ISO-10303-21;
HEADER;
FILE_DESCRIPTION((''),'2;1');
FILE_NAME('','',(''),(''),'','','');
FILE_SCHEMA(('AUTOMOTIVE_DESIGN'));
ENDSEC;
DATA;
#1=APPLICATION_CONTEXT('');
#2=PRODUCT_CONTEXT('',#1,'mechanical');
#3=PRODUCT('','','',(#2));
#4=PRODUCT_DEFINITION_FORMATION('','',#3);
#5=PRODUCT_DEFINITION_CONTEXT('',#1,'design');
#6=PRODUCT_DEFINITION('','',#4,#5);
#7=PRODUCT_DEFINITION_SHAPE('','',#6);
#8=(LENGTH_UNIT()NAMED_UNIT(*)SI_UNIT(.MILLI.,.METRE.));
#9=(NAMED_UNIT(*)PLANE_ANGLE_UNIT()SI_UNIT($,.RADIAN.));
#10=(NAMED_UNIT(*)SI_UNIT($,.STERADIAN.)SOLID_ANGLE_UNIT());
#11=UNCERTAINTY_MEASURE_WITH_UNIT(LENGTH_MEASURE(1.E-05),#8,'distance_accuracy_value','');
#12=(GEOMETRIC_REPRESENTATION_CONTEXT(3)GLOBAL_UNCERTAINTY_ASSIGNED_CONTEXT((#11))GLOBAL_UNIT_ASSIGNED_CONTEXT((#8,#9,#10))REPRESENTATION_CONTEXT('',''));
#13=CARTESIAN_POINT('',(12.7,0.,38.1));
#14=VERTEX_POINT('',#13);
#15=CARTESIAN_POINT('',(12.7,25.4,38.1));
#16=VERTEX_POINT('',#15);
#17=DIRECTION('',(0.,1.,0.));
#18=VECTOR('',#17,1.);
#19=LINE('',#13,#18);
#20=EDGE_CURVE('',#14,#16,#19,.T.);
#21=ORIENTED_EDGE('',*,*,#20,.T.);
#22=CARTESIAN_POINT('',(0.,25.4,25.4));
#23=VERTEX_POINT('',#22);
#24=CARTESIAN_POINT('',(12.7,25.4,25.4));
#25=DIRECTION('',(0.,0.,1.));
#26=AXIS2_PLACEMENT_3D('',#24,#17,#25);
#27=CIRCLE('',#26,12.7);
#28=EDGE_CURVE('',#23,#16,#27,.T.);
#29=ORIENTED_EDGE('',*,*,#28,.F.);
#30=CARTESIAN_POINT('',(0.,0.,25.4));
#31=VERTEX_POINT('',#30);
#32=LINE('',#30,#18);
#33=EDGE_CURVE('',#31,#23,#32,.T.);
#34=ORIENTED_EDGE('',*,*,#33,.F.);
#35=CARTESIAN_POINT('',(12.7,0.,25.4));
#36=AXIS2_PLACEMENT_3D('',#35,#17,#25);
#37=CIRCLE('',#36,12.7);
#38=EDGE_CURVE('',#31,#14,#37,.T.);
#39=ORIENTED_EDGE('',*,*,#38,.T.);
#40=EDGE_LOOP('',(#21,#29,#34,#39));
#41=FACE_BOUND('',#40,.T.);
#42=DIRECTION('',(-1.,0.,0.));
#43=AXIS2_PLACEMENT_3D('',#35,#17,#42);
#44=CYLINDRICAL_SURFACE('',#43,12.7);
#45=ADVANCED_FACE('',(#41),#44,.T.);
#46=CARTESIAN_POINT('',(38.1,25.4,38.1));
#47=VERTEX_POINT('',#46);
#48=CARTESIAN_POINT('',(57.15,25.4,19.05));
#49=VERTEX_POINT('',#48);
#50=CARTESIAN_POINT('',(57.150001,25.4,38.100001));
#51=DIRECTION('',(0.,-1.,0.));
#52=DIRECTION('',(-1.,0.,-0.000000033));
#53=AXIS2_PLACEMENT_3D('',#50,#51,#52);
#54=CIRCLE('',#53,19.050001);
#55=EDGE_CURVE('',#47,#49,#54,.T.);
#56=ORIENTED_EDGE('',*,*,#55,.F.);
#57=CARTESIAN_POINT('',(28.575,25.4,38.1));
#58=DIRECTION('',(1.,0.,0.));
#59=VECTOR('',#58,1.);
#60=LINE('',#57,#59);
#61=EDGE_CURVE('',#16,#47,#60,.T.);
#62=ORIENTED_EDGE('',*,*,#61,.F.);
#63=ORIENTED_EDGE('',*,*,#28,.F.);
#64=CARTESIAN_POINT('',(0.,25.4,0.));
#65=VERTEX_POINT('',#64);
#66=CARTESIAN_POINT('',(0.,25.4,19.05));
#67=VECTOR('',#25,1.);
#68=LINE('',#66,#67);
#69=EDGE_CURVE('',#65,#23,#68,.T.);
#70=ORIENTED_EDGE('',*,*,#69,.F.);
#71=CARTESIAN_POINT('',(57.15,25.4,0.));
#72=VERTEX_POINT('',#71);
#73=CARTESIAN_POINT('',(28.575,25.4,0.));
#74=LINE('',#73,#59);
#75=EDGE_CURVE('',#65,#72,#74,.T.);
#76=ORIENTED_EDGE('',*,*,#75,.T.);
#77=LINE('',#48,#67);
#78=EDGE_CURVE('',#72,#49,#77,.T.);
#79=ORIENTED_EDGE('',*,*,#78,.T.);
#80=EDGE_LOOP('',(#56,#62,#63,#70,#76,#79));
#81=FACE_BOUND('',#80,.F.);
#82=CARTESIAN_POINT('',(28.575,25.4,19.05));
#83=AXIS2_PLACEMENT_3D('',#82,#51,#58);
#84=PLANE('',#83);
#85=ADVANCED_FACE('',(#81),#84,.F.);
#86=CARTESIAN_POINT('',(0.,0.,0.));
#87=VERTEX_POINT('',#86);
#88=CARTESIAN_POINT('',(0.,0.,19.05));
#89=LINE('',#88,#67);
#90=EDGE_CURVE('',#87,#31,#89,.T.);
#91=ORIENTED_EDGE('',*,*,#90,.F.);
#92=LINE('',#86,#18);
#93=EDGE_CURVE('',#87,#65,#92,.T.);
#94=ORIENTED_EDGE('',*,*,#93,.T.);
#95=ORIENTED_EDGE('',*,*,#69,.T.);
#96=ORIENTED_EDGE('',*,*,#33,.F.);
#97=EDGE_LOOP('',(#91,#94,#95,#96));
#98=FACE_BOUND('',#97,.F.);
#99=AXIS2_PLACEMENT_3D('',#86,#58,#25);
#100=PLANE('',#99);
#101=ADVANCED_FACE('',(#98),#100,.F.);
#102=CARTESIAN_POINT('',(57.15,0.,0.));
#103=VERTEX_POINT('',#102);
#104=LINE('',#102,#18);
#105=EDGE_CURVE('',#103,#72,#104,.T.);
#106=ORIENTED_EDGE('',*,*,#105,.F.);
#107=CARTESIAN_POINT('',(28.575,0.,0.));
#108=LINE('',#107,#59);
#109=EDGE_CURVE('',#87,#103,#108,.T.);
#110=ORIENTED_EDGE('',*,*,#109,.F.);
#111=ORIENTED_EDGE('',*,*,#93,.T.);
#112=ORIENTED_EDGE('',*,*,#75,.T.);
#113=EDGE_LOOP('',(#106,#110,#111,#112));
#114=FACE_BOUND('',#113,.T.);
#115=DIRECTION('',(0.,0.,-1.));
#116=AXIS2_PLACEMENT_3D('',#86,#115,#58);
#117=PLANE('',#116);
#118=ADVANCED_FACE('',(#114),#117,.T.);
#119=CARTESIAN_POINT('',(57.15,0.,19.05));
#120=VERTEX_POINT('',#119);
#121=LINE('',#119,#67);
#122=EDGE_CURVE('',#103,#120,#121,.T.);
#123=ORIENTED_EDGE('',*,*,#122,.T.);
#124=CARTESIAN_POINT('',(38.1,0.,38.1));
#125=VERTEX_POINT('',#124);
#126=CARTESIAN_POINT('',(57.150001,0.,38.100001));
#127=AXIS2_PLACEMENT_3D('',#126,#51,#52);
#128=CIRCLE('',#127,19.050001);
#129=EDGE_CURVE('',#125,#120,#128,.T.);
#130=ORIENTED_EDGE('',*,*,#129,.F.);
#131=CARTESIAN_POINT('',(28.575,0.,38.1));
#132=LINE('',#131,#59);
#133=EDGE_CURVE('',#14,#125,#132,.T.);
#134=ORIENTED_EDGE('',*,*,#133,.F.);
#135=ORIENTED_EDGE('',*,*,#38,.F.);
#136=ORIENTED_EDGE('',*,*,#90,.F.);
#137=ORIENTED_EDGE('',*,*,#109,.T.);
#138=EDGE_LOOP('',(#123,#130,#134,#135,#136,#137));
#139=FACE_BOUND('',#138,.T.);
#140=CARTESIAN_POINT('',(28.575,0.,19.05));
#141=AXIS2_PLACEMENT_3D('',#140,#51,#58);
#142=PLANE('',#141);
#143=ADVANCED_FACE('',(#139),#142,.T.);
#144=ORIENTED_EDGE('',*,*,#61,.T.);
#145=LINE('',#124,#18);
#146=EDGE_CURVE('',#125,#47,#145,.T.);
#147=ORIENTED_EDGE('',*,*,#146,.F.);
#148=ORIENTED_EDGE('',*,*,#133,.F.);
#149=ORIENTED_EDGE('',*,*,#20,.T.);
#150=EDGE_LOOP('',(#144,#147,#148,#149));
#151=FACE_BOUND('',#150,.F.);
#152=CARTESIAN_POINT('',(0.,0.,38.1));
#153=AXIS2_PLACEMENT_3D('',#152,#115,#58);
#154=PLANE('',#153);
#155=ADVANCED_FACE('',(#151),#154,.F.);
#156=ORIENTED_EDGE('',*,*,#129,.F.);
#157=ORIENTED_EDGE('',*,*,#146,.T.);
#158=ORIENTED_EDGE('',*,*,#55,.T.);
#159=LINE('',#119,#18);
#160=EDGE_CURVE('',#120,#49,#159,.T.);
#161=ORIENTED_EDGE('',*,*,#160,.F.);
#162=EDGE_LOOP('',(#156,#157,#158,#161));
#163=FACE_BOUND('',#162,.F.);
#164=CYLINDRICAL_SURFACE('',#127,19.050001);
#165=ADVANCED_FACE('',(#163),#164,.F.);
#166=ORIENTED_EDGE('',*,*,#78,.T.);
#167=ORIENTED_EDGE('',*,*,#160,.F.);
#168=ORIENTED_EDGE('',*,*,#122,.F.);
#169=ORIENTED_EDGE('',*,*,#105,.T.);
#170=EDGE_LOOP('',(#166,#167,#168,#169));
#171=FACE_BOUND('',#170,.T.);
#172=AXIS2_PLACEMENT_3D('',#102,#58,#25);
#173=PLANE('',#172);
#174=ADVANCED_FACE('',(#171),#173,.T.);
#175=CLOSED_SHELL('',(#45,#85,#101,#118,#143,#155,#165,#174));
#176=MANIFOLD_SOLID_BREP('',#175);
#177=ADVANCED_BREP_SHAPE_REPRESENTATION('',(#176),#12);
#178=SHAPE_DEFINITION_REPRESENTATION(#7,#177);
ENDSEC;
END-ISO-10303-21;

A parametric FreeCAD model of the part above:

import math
import FreeCAD as App
import Part
import Sketcher
Q = App.Units.Quantity


def edges_at(feature, points):
    """Names of the edges that pass closest to the given points."""
    edges = feature.Shape.Edges
    near = lambda p: min(range(len(edges)), key=lambda i: edges[i].distToShape(Part.Vertex(*p))[0])
    return sorted({f"Edge{near(p) + 1}" for p in points})


def add_polygon(sketch, points):
    """Adds a closed chain of lines whose ends are joined by coincident constraints."""
    first, n = sketch.GeometryCount, len(points)
    for a, b in zip(points, points[1:] + points[:1]):
        sketch.addGeometry(Part.LineSegment(App.Vector(*a, 0), App.Vector(*b, 0)), False)
    for i in range(n):
        sketch.addConstraint(Sketcher.Constraint("Coincident", first + i, 2, first + (i + 1) % n, 1))

doc = App.newDocument("Part")
params = doc.addObject("Spreadsheet::Sheet", "Params")
for row, (alias, value) in enumerate([
    ("sketch1_height", "1.5 in"),
    ("sketch1_width", "2.25 in"),
    ("pad1_length", "1 in"),
    ("sketch2_radius", "0.75 in"),
    ("pocket1_length", "1 in"),
    ("fillet_radius", "0.5 in"),
], start=1):
    params.set(f"A{row}", alias)
    params.set(f"B{row}", "=" + value)
    params.setAlias(f"B{row}", alias)

body = doc.addObject("PartDesign::Body", "Body")

# Sketch on XZ plane
sketch1 = doc.addObject("Sketcher::SketchObject", "Sketch")
body.addObject(sketch1)
sketch1.AttachmentSupport = (doc.XZ_Plane, [""])
sketch1.MapMode = "FlatFace"
add_polygon(sketch1, [(0, 38), (0, 0), (57, 0), (57, 38)])  # lines 0-3
sketch1.addConstraint(Sketcher.Constraint("Vertical", 0))
sketch1.addConstraint(Sketcher.Constraint("Horizontal", 1))
sketch1.addConstraint(Sketcher.Constraint("Vertical", 2))
sketch1.addConstraint(Sketcher.Constraint("Horizontal", 3))
sketch1.addConstraint(Sketcher.Constraint("Coincident", 0, 2, -1, 1))
sketch1.addConstraint(Sketcher.Constraint("DistanceY", 0, 2, 0, 1, Q("1.5 in")))
sketch1.addConstraint(Sketcher.Constraint("DistanceX", 1, 1, 1, 2, Q("2.25 in")))
sketch1.setExpression("Constraints[9]", "Params.sketch1_height")
sketch1.setExpression("Constraints[10]", "Params.sketch1_width")
pad1 = doc.addObject("PartDesign::Pad", "Pad")
body.addObject(pad1)
pad1.Profile = sketch1
pad1.setExpression("Length", "Params.pad1_length")
pad1.Reversed = True

# Sketch on XZ plane
sketch2 = doc.addObject("Sketcher::SketchObject", "Sketch001")
body.addObject(sketch2)
sketch2.AttachmentSupport = (doc.XZ_Plane, [""])
sketch2.MapMode = "FlatFace"
sketch2.addGeometry(Part.LineSegment(App.Vector(57, 38, 0), App.Vector(38, 38, 0)), False)
sketch2.addGeometry(Part.ArcOfCircle(Part.Circle(App.Vector(57, 38, 0), App.Vector(0, 0, 1), 19), math.radians(-180), math.radians(-90)), False)
sketch2.addGeometry(Part.LineSegment(App.Vector(57, 19, 0), App.Vector(57, 38, 0)), False)
sketch2.addConstraint(Sketcher.Constraint("Coincident", 0, 2, 1, 1))
sketch2.addConstraint(Sketcher.Constraint("Coincident", 1, 2, 2, 1))
sketch2.addConstraint(Sketcher.Constraint("Coincident", 2, 2, 0, 1))
sketch2.addConstraint(Sketcher.Constraint("Horizontal", 0))
sketch2.addConstraint(Sketcher.Constraint("Vertical", 2))
sketch2.addConstraint(Sketcher.Constraint("Coincident", 2, 2, 1, 3))
sketch2.addConstraint(Sketcher.Constraint("Radius", 1, Q("0.75 in")))
sketch2.addConstraint(Sketcher.Constraint("DistanceY", -1, 1, 1, 3, Q("1.5 in")))
sketch2.addConstraint(Sketcher.Constraint("DistanceX", -1, 1, 0, 2, Q("1.5 in")))
sketch2.setExpression("Constraints[6]", "Params.sketch2_radius")
pocket1 = doc.addObject("PartDesign::Pocket", "Pocket")
body.addObject(pocket1)
pocket1.Profile = sketch2
pocket1.setExpression("Length", "Params.pocket1_length")
doc.recompute()

fillet = doc.addObject("PartDesign::Fillet", "Fillet")
body.addObject(fillet)
fillet.Base = (pocket1, edges_at(pocket1, [(0, 12.7, 38.1)]))
fillet.setExpression("Radius", "Params.fillet_radius")

doc.recompute()
